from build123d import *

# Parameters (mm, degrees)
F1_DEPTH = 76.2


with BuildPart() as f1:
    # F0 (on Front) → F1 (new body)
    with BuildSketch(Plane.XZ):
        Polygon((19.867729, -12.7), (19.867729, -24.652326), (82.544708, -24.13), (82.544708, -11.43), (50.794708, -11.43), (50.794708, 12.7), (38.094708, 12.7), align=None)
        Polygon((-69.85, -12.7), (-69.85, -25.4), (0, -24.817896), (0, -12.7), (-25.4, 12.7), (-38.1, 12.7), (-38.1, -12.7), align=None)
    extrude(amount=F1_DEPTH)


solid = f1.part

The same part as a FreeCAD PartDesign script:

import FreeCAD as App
import Part
import Sketcher

V = App.Vector
Q = App.Units.Quantity


def add_polygon(sketch, points):
    """Adds a closed chain of lines whose ends are joined by coincident constraints."""
    first, n = sketch.GeometryCount, len(points)
    for a, b in zip(points, points[1:] + points[:1]):
        sketch.addGeometry(Part.LineSegment(App.Vector(*a, 0), App.Vector(*b, 0)), False)
    for i in range(n):
        sketch.addConstraint(Sketcher.Constraint("Coincident", first + i, 2, first + (i + 1) % n, 1))

doc = App.newDocument("Part")
body = doc.addObject("PartDesign::Body", "Body")
body.AllowCompound = True

# Sketch on XZ plane
sketch1 = body.newObject("Sketcher::SketchObject", "Sketch")
sketch1.AttachmentSupport = (doc.getObject("XZ_Plane"), [""])
sketch1.MapMode = "FlatFace"
add_polygon(sketch1, [(20, -13), (20, -25), (83, -24), (83, -11), (51, -11), (51, 13), (38, 13)])  # lines 0-6
add_polygon(sketch1, [(-70, -13), (-70, -25), (0, -25), (0, -13), (-25, 13), (-38, 13), (-38, -13)])  # lines 7-13
sketch1.addConstraint(Sketcher.Constraint("Vertical", 0))
sketch1.addConstraint(Sketcher.Constraint("Vertical", 2))
sketch1.addConstraint(Sketcher.Constraint("Horizontal", 3))
sketch1.addConstraint(Sketcher.Constraint("Vertical", 4))
sketch1.addConstraint(Sketcher.Constraint("Horizontal", 5))
sketch1.addConstraint(Sketcher.Constraint("Vertical", 7))
sketch1.addConstraint(Sketcher.Constraint("Vertical", 9))
sketch1.addConstraint(Sketcher.Constraint("Horizontal", 11))
sketch1.addConstraint(Sketcher.Constraint("Vertical", 12))
sketch1.addConstraint(Sketcher.Constraint("Horizontal", 13))
sketch1.addConstraint(Sketcher.Constraint("PointOnObject", 8, 2, -2))
sketch1.addConstraint(Sketcher.Constraint("Parallel", 1, 8))
sketch1.addConstraint(Sketcher.Constraint("Horizontal", 6, 2, 9, 2))
sketch1.addConstraint(Sketcher.Constraint("Horizontal", 5, 2, 10, 2))
sketch1.addConstraint(Sketcher.Constraint("Horizontal", 9, 2, 12, 2))
sketch1.addConstraint(Sketcher.Constraint("Equal", 5, 11))
sketch1.addConstraint(Sketcher.Constraint("Equal", 3, 13))
sketch1.addConstraint(Sketcher.Constraint("Equal", 11, 2))
sketch1.addConstraint(Sketcher.Constraint("Equal", 2, 7))
sketch1.addConstraint(Sketcher.Constraint("DistanceY", 12, 2, 12, 1, Q("1 in")))
sketch1.addConstraint(Sketcher.Constraint("DistanceX", 5, 2, 5, 1, Q("0.5 in")))
sketch1.addConstraint(Sketcher.Constraint("DistanceY", 7, 2, -1, 1, Q("1 in")))
sketch1.addConstraint(Sketcher.Constraint("DistanceX", 10, 2, -1, 1, Q("1 in")))
sketch1.addConstraint(Sketcher.Constraint("DistanceX", 3, 2, 3, 1, Q("1.25 in")))
sketch1.addConstraint(Sketcher.Constraint("DistanceY", 4, 1, 4, 2, Q("0.95 in")))
sketch1.addConstraint(Sketcher.Constraint("Distance", 6, 31.263121))
sketch1.addConstraint(Sketcher.Constraint("DistanceY", 0, 2, 0, 1, 11.952326))
sketch1.addConstraint(Sketcher.Constraint("DistanceX", -1, 1, 0, 2, 19.867729))
pad1 = body.newObject("PartDesign::Pad", "Pad")
pad1.Profile = sketch1
pad1.Length = Q("3 in")

doc.recompute()
